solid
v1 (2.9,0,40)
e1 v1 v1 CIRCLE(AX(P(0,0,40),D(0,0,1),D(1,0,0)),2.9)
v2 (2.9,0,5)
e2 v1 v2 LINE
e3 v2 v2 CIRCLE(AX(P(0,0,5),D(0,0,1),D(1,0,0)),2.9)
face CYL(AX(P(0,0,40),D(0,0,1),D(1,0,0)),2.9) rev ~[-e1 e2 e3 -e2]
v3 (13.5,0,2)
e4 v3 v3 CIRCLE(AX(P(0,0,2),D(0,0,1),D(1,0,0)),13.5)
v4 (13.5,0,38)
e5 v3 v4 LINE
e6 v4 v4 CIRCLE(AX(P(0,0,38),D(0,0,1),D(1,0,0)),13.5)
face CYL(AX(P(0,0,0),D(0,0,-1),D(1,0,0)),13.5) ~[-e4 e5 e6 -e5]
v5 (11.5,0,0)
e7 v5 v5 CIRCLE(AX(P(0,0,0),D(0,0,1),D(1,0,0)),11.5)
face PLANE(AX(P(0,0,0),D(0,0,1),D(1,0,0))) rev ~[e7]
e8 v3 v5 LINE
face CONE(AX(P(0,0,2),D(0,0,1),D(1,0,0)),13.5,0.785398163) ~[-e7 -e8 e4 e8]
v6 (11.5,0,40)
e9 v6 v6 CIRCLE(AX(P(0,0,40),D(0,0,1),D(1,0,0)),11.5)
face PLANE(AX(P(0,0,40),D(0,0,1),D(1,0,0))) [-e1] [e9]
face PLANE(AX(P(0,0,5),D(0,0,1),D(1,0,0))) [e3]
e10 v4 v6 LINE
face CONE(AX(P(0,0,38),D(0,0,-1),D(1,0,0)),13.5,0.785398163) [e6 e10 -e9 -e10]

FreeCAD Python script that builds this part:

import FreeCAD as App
import Part
import Sketcher

V = App.Vector


def edges_at(feature, points):
    """Names of the edges that pass closest to the given points."""
    edges = feature.Shape.Edges
    near = lambda p: min(range(len(edges)), key=lambda i: edges[i].distToShape(Part.Vertex(*p))[0])
    return sorted({f"Edge{near(p) + 1}" for p in points})

doc = App.newDocument("Part")
body = doc.addObject("PartDesign::Body", "Body")

# Sketch on XY plane
sketch1 = body.newObject("Sketcher::SketchObject", "Sketch")
sketch1.AttachmentSupport = (doc.getObject("XY_Plane"), [""])
sketch1.MapMode = "FlatFace"
sketch1.addGeometry(Part.Circle(V(0, 0, 0), V(0, 0, 1), 14), False)
sketch1.addConstraint(Sketcher.Constraint("Coincident", 0, 3, -1, 1))
sketch1.addConstraint(Sketcher.Constraint("Diameter", 0, 27.0))
pad1 = body.newObject("PartDesign::Pad", "Pad")
pad1.Profile = sketch1
pad1.Length = 40

# Sketch on XY plane
sketch2 = body.newObject("Sketcher::SketchObject", "Sketch001")
sketch2.AttachmentSupport = (doc.getObject("XY_Plane"), [""])
sketch2.MapMode = "FlatFace"
sketch2.AttachmentOffset = App.Placement(V(0, 0, 40), App.Rotation())
sketch2.addGeometry(Part.Circle(V(0, 0, 0), V(0, 0, 1), 2.9), False)
sketch2.addConstraint(Sketcher.Constraint("Coincident", 0, 3, -1, 1))
sketch2.addConstraint(Sketcher.Constraint("Diameter", 0, 5.8))
pocket1 = body.newObject("PartDesign::Pocket", "Pocket")
pocket1.Profile = sketch2
pocket1.Length = 35
doc.recompute()

chamfer = body.newObject("PartDesign::Chamfer", "Chamfer")
chamfer.Base = (pocket1, edges_at(pocket1, [(-13.5, 0, 0), (-13.5, 0, 40)]))
chamfer.Size = 2

doc.recompute()
